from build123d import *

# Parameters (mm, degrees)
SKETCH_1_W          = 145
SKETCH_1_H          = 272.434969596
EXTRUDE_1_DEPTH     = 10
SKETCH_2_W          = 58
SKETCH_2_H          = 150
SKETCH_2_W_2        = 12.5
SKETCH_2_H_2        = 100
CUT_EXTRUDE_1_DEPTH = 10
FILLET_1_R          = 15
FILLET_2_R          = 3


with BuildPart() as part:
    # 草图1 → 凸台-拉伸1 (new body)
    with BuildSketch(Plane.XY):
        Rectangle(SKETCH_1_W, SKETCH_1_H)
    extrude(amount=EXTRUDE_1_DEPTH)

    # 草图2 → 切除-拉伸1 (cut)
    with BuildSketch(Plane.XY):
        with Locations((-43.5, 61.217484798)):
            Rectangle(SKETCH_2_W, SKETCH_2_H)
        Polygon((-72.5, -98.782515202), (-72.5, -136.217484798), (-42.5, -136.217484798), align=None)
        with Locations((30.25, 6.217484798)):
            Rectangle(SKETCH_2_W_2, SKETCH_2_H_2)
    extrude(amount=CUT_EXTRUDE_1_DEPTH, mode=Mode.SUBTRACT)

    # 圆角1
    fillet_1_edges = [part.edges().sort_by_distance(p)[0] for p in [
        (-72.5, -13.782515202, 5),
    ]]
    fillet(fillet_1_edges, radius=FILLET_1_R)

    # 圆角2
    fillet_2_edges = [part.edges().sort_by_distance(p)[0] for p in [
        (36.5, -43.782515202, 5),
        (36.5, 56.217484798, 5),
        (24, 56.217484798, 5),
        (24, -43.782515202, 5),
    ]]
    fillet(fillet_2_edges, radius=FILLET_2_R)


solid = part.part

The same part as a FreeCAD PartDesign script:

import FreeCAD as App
import Part
import Sketcher


def edges_at(feature, points):
    """Names of the edges that pass closest to the given points."""
    edges = feature.Shape.Edges
    near = lambda p: min(range(len(edges)), key=lambda i: edges[i].distToShape(Part.Vertex(*p))[0])
    return sorted({f"Edge{near(p) + 1}" for p in points})

doc = App.newDocument("Part")
body = doc.addObject("PartDesign::Body", "Body")

# Sketch on XY plane
sketch1 = body.newObject("Sketcher::SketchObject", "Sketch")
sketch1.AttachmentSupport = (doc.getObject("XY_Plane"), [""])
sketch1.MapMode = "FlatFace"
sketch1.addGeometry([
    Part.LineSegment(App.Vector(-72, 136, 0), App.Vector(-72, -136, 0)),
    Part.LineSegment(App.Vector(-72, -136, 0), App.Vector(72, -136, 0)),
    Part.LineSegment(App.Vector(72, -136, 0), App.Vector(72, 136, 0)),
    Part.LineSegment(App.Vector(72, 136, 0), App.Vector(-72, 136, 0)),
], False)
sketch1.addConstraint([
    Sketcher.Constraint("Coincident", 0, 2, 1, 1),
    Sketcher.Constraint("Coincident", 1, 2, 2, 1),
    Sketcher.Constraint("Coincident", 2, 2, 3, 1),
    Sketcher.Constraint("Coincident", 3, 2, 0, 1),
    Sketcher.Constraint("Vertical", 0),
    Sketcher.Constraint("Horizontal", 1),
    Sketcher.Constraint("Vertical", 2),
    Sketcher.Constraint("Horizontal", 3),
    Sketcher.Constraint("Symmetric", 0, 2, 2, 2, -1, 1),
    Sketcher.Constraint("DistanceX", 1, 1, 1, 2, 145.0),
    Sketcher.Constraint("DistanceY", 0, 2, 0, 1, 272.43497),
])
pad1 = body.newObject("PartDesign::Pad", "Pad")
pad1.Profile = sketch1
pad1.Length = 10

# Sketch on XY plane
sketch2 = body.newObject("Sketcher::SketchObject", "Sketch001")
sketch2.AttachmentSupport = (doc.getObject("XY_Plane"), [""])
sketch2.MapMode = "FlatFace"
sketch2.addGeometry([
    Part.LineSegment(App.Vector(-72, 136, 0), App.Vector(-72, -14, 0)),  # 0
    Part.LineSegment(App.Vector(-72, -14, 0), App.Vector(-14, -14, 0)),  # 1
    Part.LineSegment(App.Vector(-14, -14, 0), App.Vector(-14, 136, 0)),  # 2
    Part.LineSegment(App.Vector(-14, 136, 0), App.Vector(-72, 136, 0)),  # 3
    Part.LineSegment(App.Vector(-72, -99, 0), App.Vector(-72, -136, 0)),  # 4
    Part.LineSegment(App.Vector(-72, -136, 0), App.Vector(-42, -136, 0)),  # 5
    Part.LineSegment(App.Vector(-42, -136, 0), App.Vector(-72, -99, 0)),  # 6
    Part.LineSegment(App.Vector(24, 56, 0), App.Vector(24, -44, 0)),  # 7
    Part.LineSegment(App.Vector(24, -44, 0), App.Vector(36, -44, 0)),  # 8
    Part.LineSegment(App.Vector(36, -44, 0), App.Vector(36, 56, 0)),  # 9
    Part.LineSegment(App.Vector(36, 56, 0), App.Vector(24, 56, 0)),  # 10
], False)
sketch2.addConstraint([
    Sketcher.Constraint("Coincident", 0, 2, 1, 1),
    Sketcher.Constraint("Coincident", 1, 2, 2, 1),
    Sketcher.Constraint("Coincident", 2, 2, 3, 1),
    Sketcher.Constraint("Coincident", 3, 2, 0, 1),
    Sketcher.Constraint("Coincident", 4, 2, 5, 1),
    Sketcher.Constraint("Coincident", 5, 2, 6, 1),
    Sketcher.Constraint("Coincident", 6, 2, 4, 1),
    Sketcher.Constraint("Coincident", 7, 2, 8, 1),
    Sketcher.Constraint("Coincident", 8, 2, 9, 1),
    Sketcher.Constraint("Coincident", 9, 2, 10, 1),
    Sketcher.Constraint("Coincident", 10, 2, 7, 1),
    Sketcher.Constraint("Vertical", 0),
    Sketcher.Constraint("Horizontal", 1),
    Sketcher.Constraint("Vertical", 2),
    Sketcher.Constraint("Horizontal", 3),
    Sketcher.Constraint("Vertical", 4),
    Sketcher.Constraint("Horizontal", 5),
    Sketcher.Constraint("Vertical", 7),
    Sketcher.Constraint("Horizontal", 8),
    Sketcher.Constraint("Vertical", 9),
    Sketcher.Constraint("Horizontal", 10),
    Sketcher.Constraint("Symmetric", 3, 2, 4, 2, -1),
    Sketcher.Constraint("DistanceX", 1, 1, 1, 2, 58.0),
    Sketcher.Constraint("DistanceX", 5, 1, 5, 2, 30.0),
    Sketcher.Constraint("DistanceY", 0, 2, 0, 1, 150.0),
    Sketcher.Constraint("DistanceY", 7, 2, 7, 1, 100.0),
    Sketcher.Constraint("DistanceX", 8, 1, 8, 2, 12.5),
    Sketcher.Constraint("DistanceX", -1, 1, 7, 2, 24.0),
    Sketcher.Constraint("DistanceY", 6, 2, 0, 2, 85.0),
    Sketcher.Constraint("DistanceY", 7, 2, 1, 2, 30.0),
    Sketcher.Constraint("DistanceX", 1, 2, 8, 2, 51.0),
    Sketcher.Constraint("DistanceY", 4, 2, 4, 1, 37.43497),
])
pocket1 = body.newObject("PartDesign::Pocket", "Pocket")
pocket1.Profile = sketch2
pocket1.Length = 10
pocket1.Reversed = True
doc.recompute()

fillet = body.newObject("PartDesign::Fillet", "Fillet")
fillet.Base = (pocket1, edges_at(pocket1, [(-72.5, -13.783, 5)]))
fillet.Radius = 15
doc.recompute()

fillet2 = body.newObject("PartDesign::Fillet", "Fillet001")
fillet2.Base = (fillet, edges_at(fillet, [
    (36.5, -43.783, 5),
    (36.5, 56.217, 5),
    (24, 56.217, 5),
    (24, -43.783, 5),
]))
fillet2.Radius = 3

doc.recompute()
